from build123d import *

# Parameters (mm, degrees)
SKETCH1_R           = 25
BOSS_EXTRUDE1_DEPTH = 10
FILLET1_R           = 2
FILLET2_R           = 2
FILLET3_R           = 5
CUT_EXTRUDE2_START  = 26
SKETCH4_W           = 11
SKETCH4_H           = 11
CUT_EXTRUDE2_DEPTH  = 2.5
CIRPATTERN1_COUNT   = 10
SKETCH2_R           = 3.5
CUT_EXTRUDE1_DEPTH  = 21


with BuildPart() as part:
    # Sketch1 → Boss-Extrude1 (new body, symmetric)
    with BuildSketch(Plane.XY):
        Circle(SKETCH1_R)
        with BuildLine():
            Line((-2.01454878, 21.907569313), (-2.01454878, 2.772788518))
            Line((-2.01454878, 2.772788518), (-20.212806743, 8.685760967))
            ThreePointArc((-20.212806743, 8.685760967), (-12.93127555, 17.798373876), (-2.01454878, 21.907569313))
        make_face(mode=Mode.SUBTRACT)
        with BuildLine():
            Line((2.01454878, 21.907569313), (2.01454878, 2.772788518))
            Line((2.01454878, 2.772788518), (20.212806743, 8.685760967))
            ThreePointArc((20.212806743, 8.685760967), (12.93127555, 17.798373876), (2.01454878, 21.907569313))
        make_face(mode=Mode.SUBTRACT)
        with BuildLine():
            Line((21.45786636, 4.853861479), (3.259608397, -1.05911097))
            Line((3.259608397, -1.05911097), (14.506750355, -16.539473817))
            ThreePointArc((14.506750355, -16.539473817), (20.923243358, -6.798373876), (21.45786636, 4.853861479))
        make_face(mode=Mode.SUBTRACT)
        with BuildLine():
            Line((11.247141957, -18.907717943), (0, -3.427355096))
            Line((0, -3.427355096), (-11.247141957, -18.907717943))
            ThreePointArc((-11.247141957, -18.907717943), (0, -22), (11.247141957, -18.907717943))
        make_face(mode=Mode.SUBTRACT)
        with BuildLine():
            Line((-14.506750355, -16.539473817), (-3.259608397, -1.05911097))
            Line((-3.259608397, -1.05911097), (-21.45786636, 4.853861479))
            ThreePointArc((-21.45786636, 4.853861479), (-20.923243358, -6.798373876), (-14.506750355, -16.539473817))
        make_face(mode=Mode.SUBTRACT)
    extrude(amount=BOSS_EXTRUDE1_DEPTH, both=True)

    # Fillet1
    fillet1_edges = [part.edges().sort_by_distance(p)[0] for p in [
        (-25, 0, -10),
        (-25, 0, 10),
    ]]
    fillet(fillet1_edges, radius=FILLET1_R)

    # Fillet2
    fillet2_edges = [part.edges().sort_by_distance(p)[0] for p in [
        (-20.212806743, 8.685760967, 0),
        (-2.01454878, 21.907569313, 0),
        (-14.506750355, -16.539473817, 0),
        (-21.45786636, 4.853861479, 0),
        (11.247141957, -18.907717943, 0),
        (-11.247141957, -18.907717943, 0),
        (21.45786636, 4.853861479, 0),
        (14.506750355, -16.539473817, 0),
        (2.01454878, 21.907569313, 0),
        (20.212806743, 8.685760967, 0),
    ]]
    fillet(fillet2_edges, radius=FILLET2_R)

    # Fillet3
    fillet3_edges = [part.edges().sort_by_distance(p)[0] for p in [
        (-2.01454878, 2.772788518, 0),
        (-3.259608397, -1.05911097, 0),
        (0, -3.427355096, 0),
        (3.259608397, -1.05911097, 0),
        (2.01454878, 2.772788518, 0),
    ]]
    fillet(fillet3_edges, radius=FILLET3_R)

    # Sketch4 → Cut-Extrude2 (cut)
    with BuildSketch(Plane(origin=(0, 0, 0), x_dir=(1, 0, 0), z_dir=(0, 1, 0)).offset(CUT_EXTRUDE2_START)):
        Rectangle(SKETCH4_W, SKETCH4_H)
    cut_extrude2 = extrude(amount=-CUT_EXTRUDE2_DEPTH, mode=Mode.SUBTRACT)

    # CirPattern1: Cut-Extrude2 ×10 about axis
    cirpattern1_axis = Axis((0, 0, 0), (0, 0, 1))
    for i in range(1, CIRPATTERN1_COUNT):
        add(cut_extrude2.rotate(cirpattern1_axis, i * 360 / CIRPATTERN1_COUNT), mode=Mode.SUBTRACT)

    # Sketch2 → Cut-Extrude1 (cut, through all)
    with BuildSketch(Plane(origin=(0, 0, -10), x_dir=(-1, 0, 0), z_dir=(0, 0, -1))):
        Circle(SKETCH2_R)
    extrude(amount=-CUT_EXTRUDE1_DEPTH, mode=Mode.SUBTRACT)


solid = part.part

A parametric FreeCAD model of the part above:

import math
import FreeCAD as App
import Part
import Sketcher

V = App.Vector
Q = App.Units.Quantity


def edges_at(feature, points):
    """Names of the edges that pass closest to the given points."""
    edges = feature.Shape.Edges
    near = lambda p: min(range(len(edges)), key=lambda i: edges[i].distToShape(Part.Vertex(*p))[0])
    return sorted({f"Edge{near(p) + 1}" for p in points})


def add_polygon(sketch, points):
    """Adds a closed chain of lines whose ends are joined by coincident constraints."""
    first, n = sketch.GeometryCount, len(points)
    for a, b in zip(points, points[1:] + points[:1]):
        sketch.addGeometry(Part.LineSegment(App.Vector(*a, 0), App.Vector(*b, 0)), False)
    for i in range(n):
        sketch.addConstraint(Sketcher.Constraint("Coincident", first + i, 2, first + (i + 1) % n, 1))

doc = App.newDocument("Part")
body = doc.addObject("PartDesign::Body", "Body")

# Sketch on XY plane
sketch1 = body.newObject("Sketcher::SketchObject", "Sketch")
sketch1.AttachmentSupport = (doc.getObject("XY_Plane"), [""])
sketch1.MapMode = "FlatFace"
sketch1.addGeometry([
    Part.Circle(V(0, 0, 0), V(0, 0, 1), 25),  # 0
    Part.LineSegment(V(-3.259608, -1.059111, 0), V(-14.50675, -16.539474, 0)),  # 1
    Part.ArcOfCircle(Part.Circle(V(0, 0, 0), V(0, 0, 1), 22), math.radians(167.253957), math.radians(228.746043)),  # 2
    Part.LineSegment(V(-21.457866, 4.853861, 0), V(-3.259608, -1.059111, 0)),  # 3
    Part.LineSegment(V(0, -3.427355, 0), V(11.247142, -18.907718, 0)),  # 4
    Part.ArcOfCircle(Part.Circle(V(0, 0, 0), V(0, 0, 1), 22), math.radians(-120.746043), math.radians(-59.253957)),  # 5
    Part.LineSegment(V(-11.247142, -18.907718, 0), V(0, -3.427355, 0)),  # 6
    Part.LineSegment(V(3.259608, -1.059111, 0), V(21.457866, 4.853861, 0)),  # 7
    Part.ArcOfCircle(Part.Circle(V(0, 0, 0), V(0, 0, 1), 22), math.radians(-48.746043), math.radians(12.746043)),  # 8
    Part.LineSegment(V(14.50675, -16.539474, 0), V(3.259608, -1.059111, 0)),  # 9
    Part.ArcOfCircle(Part.Circle(V(0, 0, 0), V(0, 0, 1), 22), math.radians(95.253957), math.radians(156.746043)),  # 10
    Part.LineSegment(V(-2.014549, 21.907569, 0), V(-2.014549, 2.772789, 0)),  # 11
    Part.LineSegment(V(-2.014549, 2.772789, 0), V(-20.212807, 8.685761, 0)),  # 12
    Part.LineSegment(V(2.014549, 2.772789, 0), V(2.014549, 21.907569, 0)),  # 13
    Part.ArcOfCircle(Part.Circle(V(0, 0, 0), V(0, 0, 1), 22), math.radians(23.253957), math.radians(84.746043)),  # 14
    Part.LineSegment(V(20.212807, 8.685761, 0), V(2.014549, 2.772789, 0)),  # 15
], False)
sketch1.addConstraint([
    Sketcher.Constraint("Coincident", 1, 2, 2, 2),
    Sketcher.Constraint("Coincident", 2, 1, 3, 1),
    Sketcher.Constraint("Coincident", 3, 2, 1, 1),
    Sketcher.Constraint("Coincident", 4, 2, 5, 2),
    Sketcher.Constraint("Coincident", 5, 1, 6, 1),
    Sketcher.Constraint("Coincident", 6, 2, 4, 1),
    Sketcher.Constraint("Coincident", 7, 2, 8, 2),
    Sketcher.Constraint("Coincident", 8, 1, 9, 1),
    Sketcher.Constraint("Coincident", 9, 2, 7, 1),
    Sketcher.Constraint("Coincident", 10, 1, 11, 1),
    Sketcher.Constraint("Coincident", 11, 2, 12, 1),
    Sketcher.Constraint("Coincident", 12, 2, 10, 2),
    Sketcher.Constraint("Coincident", 13, 2, 14, 2),
    Sketcher.Constraint("Coincident", 14, 1, 15, 1),
    Sketcher.Constraint("Coincident", 15, 2, 13, 1),
    Sketcher.Constraint("Vertical", 11),
    Sketcher.Constraint("Vertical", 13),
    Sketcher.Constraint("Coincident", 0, 3, -1, 1),
    Sketcher.Constraint("Coincident", 2, 3, -1, 1),
    Sketcher.Constraint("Coincident", 5, 3, -1, 1),
    Sketcher.Constraint("Coincident", 8, 3, -1, 1),
    Sketcher.Constraint("Coincident", 10, 3, -1, 1),
    Sketcher.Constraint("Coincident", 14, 3, -1, 1),
    Sketcher.Constraint("Equal", 2, 5),
    Sketcher.Constraint("Equal", 5, 8),
    Sketcher.Constraint("Equal", 8, 10),
    Sketcher.Constraint("Equal", 10, 14),
    Sketcher.Constraint("Symmetric", 3, 2, 9, 2, -2),
    Sketcher.Constraint("Symmetric", 11, 2, 15, 2, -2),
    Sketcher.Constraint("PointOnObject", 6, 2, -2),
    Sketcher.Constraint("Parallel", 1, 6),
    Sketcher.Constraint("Parallel", 4, 9),
    Sketcher.Constraint("Parallel", 3, 12),
    Sketcher.Constraint("Parallel", 7, 15),
    Sketcher.Constraint("Horizontal", 4, 2, 5, 1),
    Sketcher.Constraint("Horizontal", 2, 1, 7, 2),
    Sketcher.Constraint("Equal", 1, 3),
    Sketcher.Constraint("Equal", 3, 4),
    Sketcher.Constraint("Equal", 9, 12),
    Sketcher.Constraint("Diameter", 0, 50.0),
    Sketcher.Constraint("Radius", 2, 22.0),
    Sketcher.Constraint("Angle", 1, Q("-126 deg")),
    Sketcher.Constraint("Angle", 3, Q("-18 deg")),
    Sketcher.Constraint("DistanceY", 11, 2, 11, 1, 19.134781),
    Sketcher.Constraint("DistanceY", 2, 1, 12, 2, 3.831899),
])
pad1 = body.newObject("PartDesign::Pad", "Pad")
pad1.Profile = sketch1
pad1.Length = 20
pad1.Midplane = True
doc.recompute()

fillet = body.newObject("PartDesign::Fillet", "Fillet")
fillet.Base = (pad1, edges_at(pad1, [(-25, 0, -10), (-25, 0, 10)]))
fillet.Radius = 2
doc.recompute()

fillet2 = body.newObject("PartDesign::Fillet", "Fillet001")
fillet2.Base = (fillet, edges_at(fillet, [
    (-20.213, 8.686, 0),
    (-2.015, 21.908, 0),
    (-14.507, -16.539, 0),
    (-21.458, 4.854, 0),
    (11.247, -18.908, 0),
    (-11.247, -18.908, 0),
    (21.458, 4.854, 0),
    (14.507, -16.539, 0),
    (2.015, 21.908, 0),
    (20.213, 8.686, 0),
]))
fillet2.Radius = 2
doc.recompute()

fillet3 = body.newObject("PartDesign::Fillet", "Fillet002")
fillet3.Base = (fillet2, edges_at(fillet2, [
    (-2.015, 2.773, 0),
    (-3.26, -1.059, 0),
    (0, -3.427, 0),
    (3.26, -1.059, 0),
    (2.015, 2.773, 0),
]))
fillet3.Radius = 5

# Sketch on XZ plane
sketch2 = body.newObject("Sketcher::SketchObject", "Sketch001")
sketch2.AttachmentSupport = (doc.getObject("XZ_Plane"), [""])
sketch2.MapMode = "FlatFace"
sketch2.AttachmentOffset = App.Placement(V(0, 0, -26), App.Rotation())
add_polygon(sketch2, [(-5.5, -5.5), (-5.5, 5.5), (5.5, 5.5), (5.5, -5.5)])  # lines 0-3
sketch2.addConstraint([
    Sketcher.Constraint("Vertical", 0),
    Sketcher.Constraint("Horizontal", 1),
    Sketcher.Constraint("Vertical", 2),
    Sketcher.Constraint("Horizontal", 3),
    Sketcher.Constraint("Symmetric", 0, 2, 2, 2, -1, 1),
    Sketcher.Constraint("Equal", 3, 0),
    Sketcher.Constraint("DistanceX", 1, 1, 1, 2, 11.0),
])
pocket1 = body.newObject("PartDesign::Pocket", "Pocket")
pocket1.Profile = sketch2
pocket1.Length = 2.5
pocket1.Reversed = True
doc.recompute()

polarpattern = body.newObject("PartDesign::PolarPattern", "PolarPattern")
polarpattern.Originals = [pocket1]
polarpattern.Axis = (doc.getObject("Z_Axis"), [""])
polarpattern.Angle = 360
polarpattern.Occurrences = 10
body.Tip = polarpattern

# Sketch on XY plane
sketch3 = body.newObject("Sketcher::SketchObject", "Sketch002")
sketch3.AttachmentSupport = (doc.getObject("XY_Plane"), [""])
sketch3.MapMode = "FlatFace"
sketch3.AttachmentOffset = App.Placement(V(0, 0, -10), App.Rotation())
sketch3.addGeometry(Part.Circle(V(0, 0, 0), V(0, 0, 1), 3.5), False)
sketch3.addConstraint([
    Sketcher.Constraint("Coincident", 0, 3, -1, 1),
    Sketcher.Constraint("Diameter", 0, 7.0),
])
pocket2 = body.newObject("PartDesign::Pocket", "Pocket001")
pocket2.Profile = sketch3
pocket2.Type = "ThroughAll"
pocket2.Reversed = True

doc.recompute()
